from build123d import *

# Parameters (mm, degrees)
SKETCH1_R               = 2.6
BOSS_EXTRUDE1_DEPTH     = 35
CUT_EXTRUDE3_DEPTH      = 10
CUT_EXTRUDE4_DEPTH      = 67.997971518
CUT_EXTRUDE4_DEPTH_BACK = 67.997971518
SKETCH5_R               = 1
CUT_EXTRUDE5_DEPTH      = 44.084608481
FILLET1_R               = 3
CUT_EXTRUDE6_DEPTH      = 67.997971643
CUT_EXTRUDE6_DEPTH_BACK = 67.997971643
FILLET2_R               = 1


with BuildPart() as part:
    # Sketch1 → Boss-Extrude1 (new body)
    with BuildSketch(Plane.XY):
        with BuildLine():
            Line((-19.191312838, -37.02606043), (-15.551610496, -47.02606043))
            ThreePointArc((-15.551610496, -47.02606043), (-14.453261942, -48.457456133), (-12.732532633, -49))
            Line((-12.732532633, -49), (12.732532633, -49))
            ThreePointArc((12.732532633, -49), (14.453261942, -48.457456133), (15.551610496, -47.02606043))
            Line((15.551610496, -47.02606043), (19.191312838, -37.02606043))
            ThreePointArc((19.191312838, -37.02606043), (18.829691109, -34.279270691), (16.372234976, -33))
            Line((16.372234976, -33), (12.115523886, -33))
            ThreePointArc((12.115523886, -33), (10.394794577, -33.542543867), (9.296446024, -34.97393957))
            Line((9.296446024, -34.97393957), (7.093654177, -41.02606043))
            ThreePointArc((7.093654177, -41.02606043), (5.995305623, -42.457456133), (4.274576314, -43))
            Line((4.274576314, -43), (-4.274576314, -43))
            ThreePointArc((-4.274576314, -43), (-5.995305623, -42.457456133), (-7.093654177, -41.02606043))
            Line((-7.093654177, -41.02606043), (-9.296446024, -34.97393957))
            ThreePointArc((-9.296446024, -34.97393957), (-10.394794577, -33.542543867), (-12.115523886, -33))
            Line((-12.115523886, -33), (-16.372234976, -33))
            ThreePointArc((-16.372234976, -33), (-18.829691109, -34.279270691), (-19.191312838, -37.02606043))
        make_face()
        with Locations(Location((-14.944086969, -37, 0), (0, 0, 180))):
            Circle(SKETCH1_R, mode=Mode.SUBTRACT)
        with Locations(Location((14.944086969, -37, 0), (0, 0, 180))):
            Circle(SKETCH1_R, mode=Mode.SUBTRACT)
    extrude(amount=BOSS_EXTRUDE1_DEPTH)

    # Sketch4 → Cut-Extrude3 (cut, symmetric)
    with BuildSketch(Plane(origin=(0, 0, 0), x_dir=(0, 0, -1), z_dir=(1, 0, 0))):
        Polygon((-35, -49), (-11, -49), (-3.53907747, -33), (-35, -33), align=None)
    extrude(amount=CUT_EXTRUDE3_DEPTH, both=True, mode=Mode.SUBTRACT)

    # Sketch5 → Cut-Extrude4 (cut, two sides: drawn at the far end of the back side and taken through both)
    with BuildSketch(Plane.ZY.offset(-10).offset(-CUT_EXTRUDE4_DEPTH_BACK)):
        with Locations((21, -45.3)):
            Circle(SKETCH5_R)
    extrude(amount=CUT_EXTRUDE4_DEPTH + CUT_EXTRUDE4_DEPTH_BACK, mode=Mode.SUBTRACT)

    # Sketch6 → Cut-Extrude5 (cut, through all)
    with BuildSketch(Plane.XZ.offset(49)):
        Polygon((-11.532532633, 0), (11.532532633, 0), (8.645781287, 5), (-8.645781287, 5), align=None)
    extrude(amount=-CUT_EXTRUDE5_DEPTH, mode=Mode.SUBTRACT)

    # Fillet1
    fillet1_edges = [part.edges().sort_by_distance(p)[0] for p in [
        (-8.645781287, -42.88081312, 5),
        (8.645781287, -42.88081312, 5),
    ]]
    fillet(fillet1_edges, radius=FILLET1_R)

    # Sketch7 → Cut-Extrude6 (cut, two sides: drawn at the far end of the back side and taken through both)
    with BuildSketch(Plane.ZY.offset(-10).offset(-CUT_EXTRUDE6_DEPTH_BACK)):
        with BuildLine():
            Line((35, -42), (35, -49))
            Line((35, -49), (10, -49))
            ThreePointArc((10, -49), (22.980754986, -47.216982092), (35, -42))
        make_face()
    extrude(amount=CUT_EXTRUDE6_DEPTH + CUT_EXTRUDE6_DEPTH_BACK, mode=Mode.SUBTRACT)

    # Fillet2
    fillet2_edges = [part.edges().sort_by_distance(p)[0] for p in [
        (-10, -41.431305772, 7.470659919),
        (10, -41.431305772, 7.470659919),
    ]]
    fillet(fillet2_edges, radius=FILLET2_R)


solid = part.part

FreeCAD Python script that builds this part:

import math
import FreeCAD as App
import Part
import Sketcher
from FreeCAD import Vector
Q = App.Units.Quantity


def edges_at(feature, points):
    """Names of the edges that pass closest to the given points."""
    edges = feature.Shape.Edges
    near = lambda p: min(range(len(edges)), key=lambda i: edges[i].distToShape(Part.Vertex(*p))[0])
    return sorted({f"Edge{near(p) + 1}" for p in points})

doc = App.newDocument("Part")
params = doc.addObject("Spreadsheet::Sheet", "Params")
for row, (alias, value) in enumerate([
    ("sketch1_radius", "3 mm"),
    ("sketch1_diameter", "5.2 mm"),
    ("pad1_length", "35 mm"),
    ("sketch2_width", "16 mm"),
    ("sketch2_height", "24 mm"),
    ("pocket1_length", "20 mm"),
    ("sketch3_diameter", "2 mm"),
    ("fillet_radius", "3 mm"),
    ("sketch5_width", "7 mm"),
    ("sketch5_height", "25 mm"),
    ("fillet2_radius", "1 mm"),
], start=1):
    params.set(f"A{row}", alias)
    params.set(f"B{row}", "=" + value)
    params.setAlias(f"B{row}", alias)

body = doc.addObject("PartDesign::Body", "Body")

sketch1 = body.newObject("Sketcher::SketchObject", "Sketch")
sketch1.AttachmentSupport = (doc.getObject("XY_Plane"), [""])
sketch1.MapMode = "FlatFace"
sketch1.addGeometry([
    Part.LineSegment(Vector(-19.2, -37, 0), Vector(-15.6, -47, 0)),
    Part.ArcOfCircle(Part.Circle(Vector(-12.7, -46, 0), Vector(0, 0, 1), 3), math.radians(-160), math.radians(-90)),
    Part.LineSegment(Vector(-12.7, -49, 0), Vector(12.7, -49, 0)),
    Part.ArcOfCircle(Part.Circle(Vector(12.7, -46, 0), Vector(0, 0, 1), 3), math.radians(-90), math.radians(-20)),
    Part.LineSegment(Vector(15.6, -47, 0), Vector(19.2, -37, 0)),
    Part.ArcOfCircle(Part.Circle(Vector(16.4, -36, 0), Vector(0, 0, 1), 3), math.radians(-20), math.radians(90)),
    Part.LineSegment(Vector(16.4, -33, 0), Vector(12.1, -33, 0)),
    Part.ArcOfCircle(Part.Circle(Vector(12.1, -36, 0), Vector(0, 0, 1), 3), math.radians(90), math.radians(160)),
    Part.LineSegment(Vector(9.3, -35, 0), Vector(7.1, -41, 0)),
    Part.ArcOfCircle(Part.Circle(Vector(4.3, -40, 0), Vector(0, 0, 1), 3), math.radians(-90), math.radians(-20)),
    Part.LineSegment(Vector(4.3, -43, 0), Vector(-4.3, -43, 0)),
    Part.ArcOfCircle(Part.Circle(Vector(-4.3, -40, 0), Vector(0, 0, 1), 3), math.radians(-160), math.radians(-90)),
    Part.LineSegment(Vector(-7.1, -41, 0), Vector(-9.3, -35, 0)),
    Part.ArcOfCircle(Part.Circle(Vector(-12.1, -36, 0), Vector(0, 0, 1), 3), math.radians(20), math.radians(90)),
    Part.LineSegment(Vector(-12.1, -33, 0), Vector(-16.4, -33, 0)),
    Part.ArcOfCircle(Part.Circle(Vector(-16.4, -36, 0), Vector(0, 0, 1), 3), math.radians(90), math.radians(200)),
    Part.Circle(Vector(-14.9, -37, 0), Vector(0, 0, 1), 2.6),
    Part.Circle(Vector(14.9, -37, 0), Vector(0, 0, 1), 2.6),
], False)
sketch1.addConstraint([
    Sketcher.Constraint("Tangent", 0, 2, 1, 1),
    Sketcher.Constraint("Tangent", 1, 2, 2, 1),
    Sketcher.Constraint("Tangent", 2, 2, 3, 1),
    Sketcher.Constraint("Tangent", 3, 2, 4, 1),
    Sketcher.Constraint("Tangent", 4, 2, 5, 1),
    Sketcher.Constraint("Tangent", 5, 2, 6, 1),
    Sketcher.Constraint("Tangent", 6, 2, 7, 1),
    Sketcher.Constraint("Tangent", 7, 2, 8, 1),
    Sketcher.Constraint("Tangent", 8, 2, 9, 2),
    Sketcher.Constraint("Tangent", 9, 1, 10, 1),
    Sketcher.Constraint("Tangent", 10, 2, 11, 2),
    Sketcher.Constraint("Tangent", 11, 1, 12, 1),
    Sketcher.Constraint("Tangent", 12, 2, 13, 1),
    Sketcher.Constraint("Tangent", 13, 2, 14, 1),
    Sketcher.Constraint("Tangent", 14, 2, 15, 1),
    Sketcher.Constraint("Tangent", 15, 2, 0, 1),
    Sketcher.Constraint("Horizontal", 2),
    Sketcher.Constraint("Horizontal", 6),
    Sketcher.Constraint("Horizontal", 10),
    Sketcher.Constraint("Horizontal", 14),
    Sketcher.Constraint("Equal", 1, 3),
    Sketcher.Constraint("Equal", 3, 5),
    Sketcher.Constraint("Equal", 5, 7),
    Sketcher.Constraint("Equal", 7, 9),
    Sketcher.Constraint("Equal", 9, 11),
    Sketcher.Constraint("Equal", 11, 13),
    Sketcher.Constraint("Equal", 13, 15),
    Sketcher.Constraint("Equal", 16, 17),
    Sketcher.Constraint("Symmetric", 7, 3, 13, 3, -2),
    Sketcher.Constraint("Symmetric", 16, 3, 17, 3, -2),
    Sketcher.Constraint("Symmetric", 0, 2, 3, 2, -2),
    Sketcher.Constraint("Parallel", 4, 8),
    Sketcher.Constraint("Parallel", 0, 12),
    Sketcher.Constraint("Radius", 1, 3.0),
    Sketcher.Constraint("Diameter", 16, 5.2),
    Sketcher.Constraint("Angle", 0, Q("-70 deg")),
    Sketcher.Constraint("DistanceY", 1, 3, -1, 1, 46.0),
    Sketcher.Constraint("DistanceY", 5, 3, -1, 1, 36.0),
    Sketcher.Constraint("DistanceY", 9, 3, -1, 1, 40.0),
    Sketcher.Constraint("DistanceY", 16, 3, -1, 1, 37.0),
    Sketcher.Constraint("DistanceX", 6, 2, 6, 1, 4.256711),
    Sketcher.Constraint("DistanceX", 11, 3, 7, 3, 16.3901),
    Sketcher.Constraint("DistanceX", 15, 3, 16, 3, 1.428148),
])
sketch1.setExpression("Constraints[33]", "Params.sketch1_radius")
sketch1.setExpression("Constraints[34]", "Params.sketch1_diameter")
pad1 = body.newObject("PartDesign::Pad", "Pad")
pad1.Profile = sketch1
pad1.setExpression("Length", "Params.pad1_length")

sketch2 = body.newObject("Sketcher::SketchObject", "Sketch001")
sketch2.AttachmentSupport = (doc.getObject("YZ_Plane"), [""])
sketch2.MapMode = "FlatFace"
sketch2.addGeometry([
    Part.LineSegment(Vector(-49, 35, 0), Vector(-49, 11, 0)),
    Part.LineSegment(Vector(-49, 11, 0), Vector(-33, 4, 0)),
    Part.LineSegment(Vector(-33, 4, 0), Vector(-33, 35, 0)),
    Part.LineSegment(Vector(-33, 35, 0), Vector(-49, 35, 0)),
], False)
sketch2.addConstraint([
    Sketcher.Constraint("Coincident", 0, 2, 1, 1),
    Sketcher.Constraint("Coincident", 1, 2, 2, 1),
    Sketcher.Constraint("Coincident", 2, 2, 3, 1),
    Sketcher.Constraint("Coincident", 3, 2, 0, 1),
    Sketcher.Constraint("Vertical", 0),
    Sketcher.Constraint("Vertical", 2),
    Sketcher.Constraint("Horizontal", 3),
    Sketcher.Constraint("DistanceX", 3, 2, 3, 1, 16.0),
    Sketcher.Constraint("DistanceY", 0, 2, 0, 1, 24.0),
    Sketcher.Constraint("Angle", 1, Q("-25 deg")),
    Sketcher.Constraint("DistanceX", 0, 2, -1, 1, 49.0),
    Sketcher.Constraint("DistanceY", -1, 1, 0, 2, 11.0),
])
sketch2.setExpression("Constraints[7]", "Params.sketch2_width")
sketch2.setExpression("Constraints[8]", "Params.sketch2_height")
pocket1 = body.newObject("PartDesign::Pocket", "Pocket")
pocket1.Profile = sketch2
pocket1.setExpression("Length", "Params.pocket1_length")
pocket1.Midplane = True

sketch3 = body.newObject("Sketcher::SketchObject", "Sketch002")
sketch3.AttachmentSupport = (doc.getObject("YZ_Plane"), [""])
sketch3.MapMode = "FlatFace"
sketch3.AttachmentOffset = App.Placement(Vector(0, 0, 10), App.Rotation())
sketch3.addGeometry(Part.Circle(Vector(-45.3, 21, 0), Vector(0, 0, 1), 1), False)
sketch3.addConstraint([
    Sketcher.Constraint("Diameter", 0, 2.0),
    Sketcher.Constraint("DistanceY", -1, 1, 0, 3, 21.0),
    Sketcher.Constraint("DistanceX", 0, 3, -1, 1, 45.3),
])
sketch3.setExpression("Constraints[0]", "Params.sketch3_diameter")
pocket2 = body.newObject("PartDesign::Pocket", "Pocket001")
pocket2.Profile = sketch3
pocket2.Type = "ThroughAll"
pocket2.Midplane = True

sketch4 = body.newObject("Sketcher::SketchObject", "Sketch003")
sketch4.AttachmentSupport = (doc.getObject("XZ_Plane"), [""])
sketch4.MapMode = "FlatFace"
sketch4.AttachmentOffset = App.Placement(Vector(0, 0, 49), App.Rotation())
sketch4.addGeometry([
    Part.LineSegment(Vector(-12, 0, 0), Vector(12, 0, 0)),
    Part.LineSegment(Vector(12, 0, 0), Vector(9, 5, 0)),
    Part.LineSegment(Vector(9, 5, 0), Vector(-9, 5, 0)),
    Part.LineSegment(Vector(-9, 5, 0), Vector(-12, 0, 0)),
], False)
sketch4.addConstraint([
    Sketcher.Constraint("Coincident", 0, 2, 1, 1),
    Sketcher.Constraint("Coincident", 1, 2, 2, 1),
    Sketcher.Constraint("Coincident", 2, 2, 3, 1),
    Sketcher.Constraint("Coincident", 3, 2, 0, 1),
    Sketcher.Constraint("Horizontal", 0),
    Sketcher.Constraint("Horizontal", 2),
    Sketcher.Constraint("Symmetric", 0, 2, 3, 2, -1, 1),
    Sketcher.Constraint("Equal", 1, 3),
    Sketcher.Constraint("Angle", 1, Q("120 deg")),
    Sketcher.Constraint("DistanceY", -1, 1, 1, 2, 5.0),
    Sketcher.Constraint("DistanceX", 0, 1, 0, 2, 23.065065),
])
pocket3 = body.newObject("PartDesign::Pocket", "Pocket002")
pocket3.Profile = sketch4
pocket3.Type = "ThroughAll"
doc.recompute()

fillet = body.newObject("PartDesign::Fillet", "Fillet")
fillet.Base = (pocket3, edges_at(pocket3, [(-8.646, -42.881, 5), (8.646, -42.881, 5)]))
fillet.setExpression("Radius", "Params.fillet_radius")

sketch5 = body.newObject("Sketcher::SketchObject", "Sketch004")
sketch5.AttachmentSupport = (doc.getObject("YZ_Plane"), [""])
sketch5.MapMode = "FlatFace"
sketch5.AttachmentOffset = App.Placement(Vector(0, 0, 10), App.Rotation())
sketch5.addGeometry([
    Part.LineSegment(Vector(-49, 35, 0), Vector(-42, 35, 0)),
    Part.ArcOfCircle(Part.Circle(Vector(-1, 10, 0), Vector(0, 0, 1), 48), math.radians(149), math.radians(180)),
    Part.LineSegment(Vector(-49, 10, 0), Vector(-49, 35, 0)),
], False)
sketch5.addConstraint([
    Sketcher.Constraint("Coincident", 0, 2, 1, 1),
    Sketcher.Constraint("Tangent", 1, 2, 2, 1),
    Sketcher.Constraint("Coincident", 2, 2, 0, 1),
    Sketcher.Constraint("Horizontal", 0),
    Sketcher.Constraint("Vertical", 2),
    Sketcher.Constraint("DistanceX", 0, 1, 0, 2, 7.0),
    Sketcher.Constraint("DistanceY", 2, 1, 2, 2, 25.0),
    Sketcher.Constraint("DistanceY", -1, 1, 1, 3, 10.0),
    Sketcher.Constraint("DistanceX", 0, 2, -1, 1, 42.0),
])
sketch5.setExpression("Constraints[5]", "Params.sketch5_width")
sketch5.setExpression("Constraints[6]", "Params.sketch5_height")
pocket4 = body.newObject("PartDesign::Pocket", "Pocket003")
pocket4.Profile = sketch5
pocket4.Type = "ThroughAll"
pocket4.Midplane = True
doc.recompute()

fillet2 = body.newObject("PartDesign::Fillet", "Fillet001")
fillet2.Base = (pocket4, edges_at(pocket4, [(-10, -41.431, 7.471), (10, -41.431, 7.471)]))
fillet2.setExpression("Radius", "Params.fillet2_radius")

doc.recompute()
